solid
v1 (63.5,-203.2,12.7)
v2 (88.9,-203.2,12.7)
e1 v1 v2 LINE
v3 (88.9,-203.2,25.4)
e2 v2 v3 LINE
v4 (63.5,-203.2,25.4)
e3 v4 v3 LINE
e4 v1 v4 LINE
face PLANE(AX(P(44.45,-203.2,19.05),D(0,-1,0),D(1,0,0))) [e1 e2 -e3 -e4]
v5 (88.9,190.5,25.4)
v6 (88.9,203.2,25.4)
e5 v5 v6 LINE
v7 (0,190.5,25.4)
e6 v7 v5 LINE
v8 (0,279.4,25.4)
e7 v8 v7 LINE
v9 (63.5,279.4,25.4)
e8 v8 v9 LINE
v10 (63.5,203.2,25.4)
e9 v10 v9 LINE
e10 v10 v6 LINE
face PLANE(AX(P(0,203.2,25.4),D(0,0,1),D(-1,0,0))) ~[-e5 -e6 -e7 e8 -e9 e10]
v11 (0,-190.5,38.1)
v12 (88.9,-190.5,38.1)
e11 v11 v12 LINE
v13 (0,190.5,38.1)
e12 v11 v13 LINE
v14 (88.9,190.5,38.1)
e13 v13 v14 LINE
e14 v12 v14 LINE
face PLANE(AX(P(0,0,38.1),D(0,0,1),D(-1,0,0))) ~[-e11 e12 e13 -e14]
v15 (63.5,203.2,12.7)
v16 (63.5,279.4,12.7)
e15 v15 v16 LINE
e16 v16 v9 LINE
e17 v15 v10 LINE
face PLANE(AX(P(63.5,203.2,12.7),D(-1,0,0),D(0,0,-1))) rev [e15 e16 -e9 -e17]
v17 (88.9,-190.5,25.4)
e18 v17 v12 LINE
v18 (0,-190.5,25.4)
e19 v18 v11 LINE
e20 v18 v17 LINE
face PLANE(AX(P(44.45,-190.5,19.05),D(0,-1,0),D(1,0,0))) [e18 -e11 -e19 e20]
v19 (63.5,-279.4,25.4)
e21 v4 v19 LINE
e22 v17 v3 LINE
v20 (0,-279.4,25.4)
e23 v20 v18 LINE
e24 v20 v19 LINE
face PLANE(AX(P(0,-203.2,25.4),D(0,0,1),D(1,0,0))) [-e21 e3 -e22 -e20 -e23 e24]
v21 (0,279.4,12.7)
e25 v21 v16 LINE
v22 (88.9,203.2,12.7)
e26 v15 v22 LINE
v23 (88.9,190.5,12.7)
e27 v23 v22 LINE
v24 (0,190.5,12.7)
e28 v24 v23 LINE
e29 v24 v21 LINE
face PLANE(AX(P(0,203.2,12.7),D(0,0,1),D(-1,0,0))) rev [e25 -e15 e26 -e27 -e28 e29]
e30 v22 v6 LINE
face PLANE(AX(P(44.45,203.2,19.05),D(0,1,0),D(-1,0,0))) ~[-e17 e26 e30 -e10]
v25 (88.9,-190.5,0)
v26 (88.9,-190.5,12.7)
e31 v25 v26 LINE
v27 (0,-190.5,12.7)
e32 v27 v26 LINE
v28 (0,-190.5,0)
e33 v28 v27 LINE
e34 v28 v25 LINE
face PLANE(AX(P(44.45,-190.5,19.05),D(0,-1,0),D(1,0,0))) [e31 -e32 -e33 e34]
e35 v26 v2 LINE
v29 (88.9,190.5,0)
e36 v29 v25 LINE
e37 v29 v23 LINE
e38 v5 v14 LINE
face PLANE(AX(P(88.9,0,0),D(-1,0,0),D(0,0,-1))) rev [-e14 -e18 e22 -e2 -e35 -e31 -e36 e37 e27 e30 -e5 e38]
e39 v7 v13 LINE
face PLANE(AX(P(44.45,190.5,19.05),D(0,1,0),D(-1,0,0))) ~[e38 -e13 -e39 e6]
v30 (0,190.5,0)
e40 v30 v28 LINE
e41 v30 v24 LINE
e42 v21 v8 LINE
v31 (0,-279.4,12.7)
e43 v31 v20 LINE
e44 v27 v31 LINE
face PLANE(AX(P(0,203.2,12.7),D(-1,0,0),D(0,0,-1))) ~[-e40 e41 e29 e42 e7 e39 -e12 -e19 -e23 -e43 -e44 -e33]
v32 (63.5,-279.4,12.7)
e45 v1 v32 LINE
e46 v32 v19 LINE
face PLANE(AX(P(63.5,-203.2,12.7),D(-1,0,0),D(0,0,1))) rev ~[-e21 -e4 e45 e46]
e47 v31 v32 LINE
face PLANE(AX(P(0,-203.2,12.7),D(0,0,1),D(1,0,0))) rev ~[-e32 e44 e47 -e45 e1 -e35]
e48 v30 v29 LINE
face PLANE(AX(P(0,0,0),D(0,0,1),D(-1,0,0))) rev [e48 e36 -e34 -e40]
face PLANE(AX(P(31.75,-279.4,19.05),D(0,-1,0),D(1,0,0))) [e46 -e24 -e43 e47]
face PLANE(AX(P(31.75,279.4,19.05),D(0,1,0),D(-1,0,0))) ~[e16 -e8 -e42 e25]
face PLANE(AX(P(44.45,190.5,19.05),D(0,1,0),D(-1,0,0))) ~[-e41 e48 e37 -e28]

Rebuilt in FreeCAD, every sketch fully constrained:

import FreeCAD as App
import Part
import Sketcher
from FreeCAD import Vector
Q = App.Units.Quantity


def add_polygon(sketch, points):
    """Adds a closed chain of lines whose ends are joined by coincident constraints."""
    first, n = sketch.GeometryCount, len(points)
    for a, b in zip(points, points[1:] + points[:1]):
        sketch.addGeometry(Part.LineSegment(App.Vector(*a, 0), App.Vector(*b, 0)), False)
    for i in range(n):
        sketch.addConstraint(Sketcher.Constraint("Coincident", first + i, 2, first + (i + 1) % n, 1))

doc = App.newDocument("Part")
params = doc.addObject("Spreadsheet::Sheet", "Params")
for row, (alias, value) in enumerate([
    ("sketch1_width", "3.5 in"),
    ("sketch1_height", "1.5 in"),
    ("pad1_length", "7.5 in"),
    ("sketch2_width", "3.5 in"),
    ("sketch2_height", "0.5 in"),
    ("pad2_length", "0.5 in"),
    ("sketch3_width", "2.5 in"),
    ("sketch3_height", "0.5 in"),
    ("pad3_length", "3 in"),
], start=1):
    params.set(f"A{row}", alias)
    params.set(f"B{row}", "=" + value)
    params.setAlias(f"B{row}", alias)

body = doc.addObject("PartDesign::Body", "Body")

# Sketch on XZ plane
sketch1 = body.newObject("Sketcher::SketchObject", "Sketch")
sketch1.AttachmentSupport = (doc.getObject("XZ_Plane"), [""])
sketch1.MapMode = "FlatFace"
add_polygon(sketch1, [(0, 38), (0, 0), (89, 0), (89, 38)])  # lines 0-3
sketch1.addConstraint([
    Sketcher.Constraint("Vertical", 0),
    Sketcher.Constraint("Horizontal", 1),
    Sketcher.Constraint("Vertical", 2),
    Sketcher.Constraint("Horizontal", 3),
    Sketcher.Constraint("Coincident", 0, 2, -1, 1),
    Sketcher.Constraint("DistanceX", 1, 1, 1, 2, Q("3.5 in")),
    Sketcher.Constraint("DistanceY", 0, 2, 0, 1, Q("1.5 in")),
])
sketch1.setExpression("Constraints[9]", "Params.sketch1_width")
sketch1.setExpression("Constraints[10]", "Params.sketch1_height")
pad1 = body.newObject("PartDesign::Pad", "Pad")
pad1.Profile = sketch1
pad1.setExpression("Length", "Params.pad1_length")

# Sketch on XZ plane
sketch2 = body.newObject("Sketcher::SketchObject", "Sketch001")
sketch2.AttachmentSupport = (doc.getObject("XZ_Plane"), [""])
sketch2.MapMode = "FlatFace"
sketch2.AttachmentOffset = App.Placement(Vector(0, 0, 7.5 * 25.4), App.Rotation())
add_polygon(sketch2, [(0, 25), (0, 13), (89, 13), (89, 25)])  # lines 0-3
sketch2.addConstraint([
    Sketcher.Constraint("Vertical", 0),
    Sketcher.Constraint("Horizontal", 1),
    Sketcher.Constraint("Vertical", 2),
    Sketcher.Constraint("Horizontal", 3),
    Sketcher.Constraint("PointOnObject", 0, 2, -2),
    Sketcher.Constraint("DistanceX", 1, 1, 1, 2, Q("3.5 in")),
    Sketcher.Constraint("DistanceY", 0, 2, 0, 1, Q("0.5 in")),
    Sketcher.Constraint("DistanceY", -1, 1, 2, 2, Q("1 in")),
])
sketch2.setExpression("Constraints[9]", "Params.sketch2_width")
sketch2.setExpression("Constraints[10]", "Params.sketch2_height")
pad2 = body.newObject("PartDesign::Pad", "Pad001")
pad2.Profile = sketch2
pad2.setExpression("Length", "Params.pad2_length")

# Sketch on XZ plane
sketch3 = body.newObject("Sketcher::SketchObject", "Sketch002")
sketch3.AttachmentSupport = (doc.getObject("XZ_Plane"), [""])
sketch3.MapMode = "FlatFace"
sketch3.AttachmentOffset = App.Placement(Vector(0, 0, 8 * 25.4), App.Rotation())
add_polygon(sketch3, [(0, 25), (0, 13), (64, 13), (64, 25)])  # lines 0-3
sketch3.addConstraint([
    Sketcher.Constraint("Vertical", 0),
    Sketcher.Constraint("Horizontal", 1),
    Sketcher.Constraint("Vertical", 2),
    Sketcher.Constraint("Horizontal", 3),
    Sketcher.Constraint("PointOnObject", 0, 2, -2),
    Sketcher.Constraint("DistanceX", 1, 1, 1, 2, Q("2.5 in")),
    Sketcher.Constraint("DistanceY", 0, 2, 0, 1, Q("0.5 in")),
    Sketcher.Constraint("DistanceY", -1, 1, 2, 2, Q("1 in")),
])
sketch3.setExpression("Constraints[9]", "Params.sketch3_width")
sketch3.setExpression("Constraints[10]", "Params.sketch3_height")
pad3 = body.newObject("PartDesign::Pad", "Pad002")
pad3.Profile = sketch3
pad3.setExpression("Length", "Params.pad3_length")
body2 = doc.addObject("PartDesign::Body", "Body001")
doc.recompute()

body2.BaseFeature = body
doc.recompute()

mirroring = doc.addObject("Part::Mirroring", "Mirroring")
mirroring.Source = body
mirroring.Base = Vector(44.45, 0, 19.05)
mirroring.Normal = Vector(0, 1, 0)
body3 = doc.addObject("PartDesign::Body", "Body002")
body3.BaseFeature = mirroring
boolean = body2.newObject("PartDesign::Boolean", "Boolean")
boolean.Type = "Fuse"
boolean.addObjects([body3])
doc.recompute()
mirroring.Visibility = False

doc.recompute()
